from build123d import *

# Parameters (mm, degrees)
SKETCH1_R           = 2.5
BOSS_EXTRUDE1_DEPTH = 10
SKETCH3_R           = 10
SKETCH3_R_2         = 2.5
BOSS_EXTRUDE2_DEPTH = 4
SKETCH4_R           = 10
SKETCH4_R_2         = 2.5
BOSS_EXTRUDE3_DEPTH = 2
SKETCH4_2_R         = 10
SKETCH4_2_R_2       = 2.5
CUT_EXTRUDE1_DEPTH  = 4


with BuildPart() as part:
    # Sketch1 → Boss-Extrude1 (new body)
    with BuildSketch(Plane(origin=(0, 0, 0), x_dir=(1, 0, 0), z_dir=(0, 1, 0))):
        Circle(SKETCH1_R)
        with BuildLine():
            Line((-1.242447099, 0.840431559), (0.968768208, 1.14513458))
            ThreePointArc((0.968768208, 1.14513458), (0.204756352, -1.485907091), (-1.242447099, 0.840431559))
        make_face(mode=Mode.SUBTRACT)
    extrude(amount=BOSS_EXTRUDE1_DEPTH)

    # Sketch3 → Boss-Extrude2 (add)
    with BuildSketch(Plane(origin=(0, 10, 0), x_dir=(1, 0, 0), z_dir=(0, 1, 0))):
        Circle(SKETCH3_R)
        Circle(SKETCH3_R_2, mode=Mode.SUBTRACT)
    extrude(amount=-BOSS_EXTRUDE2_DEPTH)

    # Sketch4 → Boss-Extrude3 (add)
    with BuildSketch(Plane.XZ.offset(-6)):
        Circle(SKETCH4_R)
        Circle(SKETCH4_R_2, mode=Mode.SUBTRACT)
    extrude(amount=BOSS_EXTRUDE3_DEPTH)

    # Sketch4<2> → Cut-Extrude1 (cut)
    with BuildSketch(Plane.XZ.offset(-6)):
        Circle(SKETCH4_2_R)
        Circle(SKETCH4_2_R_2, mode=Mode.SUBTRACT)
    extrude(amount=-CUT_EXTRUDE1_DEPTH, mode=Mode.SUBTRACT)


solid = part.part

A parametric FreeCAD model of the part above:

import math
import FreeCAD as App
import Part
import Sketcher

doc = App.newDocument("Part")
body = doc.addObject("PartDesign::Body", "Body")

sketch1 = body.newObject("Sketcher::SketchObject", "Sketch")
sketch1.AttachmentSupport = (doc.getObject("XZ_Plane"), [""])
sketch1.MapMode = "FlatFace"
sketch1.addGeometry(Part.Circle(App.Vector(0, 0, 0), App.Vector(0, 0, 1), 2.5), False)
sketch1.addGeometry(Part.ArcOfCircle(Part.Circle(App.Vector(0, 0, 0), App.Vector(0, 0, 1), 1.5), math.radians(-50), math.radians(214)), False)
sketch1.addGeometry(Part.LineSegment(App.Vector(-1.2, -0.8, 0), App.Vector(1, -1.1, 0)), False)
sketch1.addConstraint(Sketcher.Constraint("Coincident", 1, 1, 2, 2))
sketch1.addConstraint(Sketcher.Constraint("Coincident", 2, 1, 1, 2))
sketch1.addConstraint(Sketcher.Constraint("Coincident", 0, 3, -1, 1))
sketch1.addConstraint(Sketcher.Constraint("Diameter", 0, 5.0))
sketch1.addConstraint(Sketcher.Constraint("Radius", 1, 1.499964))
sketch1.addConstraint(Sketcher.Constraint("Distance", 2, 2.23211))
sketch1.addConstraint(Sketcher.Constraint("DistanceX", -1, 1, 1, 1, 0.968768))
sketch1.addConstraint(Sketcher.Constraint("DistanceY", 2, 1, -1, 1, 0.840432))
sketch1.addConstraint(Sketcher.Constraint("DistanceX", 2, 1, 1, 3, 1.242411))
pad1 = body.newObject("PartDesign::Pad", "Pad")
pad1.Profile = sketch1
pad1.Length = 10
pad1.Reversed = True

sketch2 = body.newObject("Sketcher::SketchObject", "Sketch001")
sketch2.AttachmentSupport = (doc.getObject("XZ_Plane"), [""])
sketch2.MapMode = "FlatFace"
sketch2.AttachmentOffset = App.Placement(App.Vector(0, 0, -10), App.Rotation())
sketch2.addGeometry(Part.Circle(App.Vector(0, 0, 0), App.Vector(0, 0, 1), 10), False)
sketch2.addGeometry(Part.Circle(App.Vector(0, 0, 0), App.Vector(0, 0, 1), 2.5), False)
sketch2.addConstraint(Sketcher.Constraint("Coincident", 0, 3, -1, 1))
sketch2.addConstraint(Sketcher.Constraint("Coincident", 1, 3, -1, 1))
sketch2.addConstraint(Sketcher.Constraint("Diameter", 0, 20.0))
sketch2.addConstraint(Sketcher.Constraint("Diameter", 1, 5.0))
pad2 = body.newObject("PartDesign::Pad", "Pad001")
pad2.Profile = sketch2
pad2.Length = 4

sketch3 = body.newObject("Sketcher::SketchObject", "Sketch002")
sketch3.AttachmentSupport = (doc.getObject("XZ_Plane"), [""])
sketch3.MapMode = "FlatFace"
sketch3.AttachmentOffset = App.Placement(App.Vector(0, 0, -6), App.Rotation())
sketch3.addGeometry(Part.Circle(App.Vector(0, 0, 0), App.Vector(0, 0, 1), 10), False)
sketch3.addGeometry(Part.Circle(App.Vector(0, 0, 0), App.Vector(0, 0, 1), 2.5), False)
sketch3.addConstraint(Sketcher.Constraint("Coincident", 0, 3, -1, 1))
sketch3.addConstraint(Sketcher.Constraint("Coincident", 1, 3, -1, 1))
sketch3.addConstraint(Sketcher.Constraint("Diameter", 0, 20.0))
sketch3.addConstraint(Sketcher.Constraint("Diameter", 1, 5.0))
pad3 = body.newObject("PartDesign::Pad", "Pad002")
pad3.Profile = sketch3
pad3.Length = 2

sketch4 = body.newObject("Sketcher::SketchObject", "Sketch003")
sketch4.AttachmentSupport = (doc.getObject("XZ_Plane"), [""])
sketch4.MapMode = "FlatFace"
sketch4.AttachmentOffset = App.Placement(App.Vector(0, 0, -6), App.Rotation())
sketch4.addGeometry(Part.Circle(App.Vector(0, 0, 0), App.Vector(0, 0, 1), 10), False)
sketch4.addGeometry(Part.Circle(App.Vector(0, 0, 0), App.Vector(0, 0, 1), 2.5), False)
sketch4.addConstraint(Sketcher.Constraint("Coincident", 0, 3, -1, 1))
sketch4.addConstraint(Sketcher.Constraint("Coincident", 1, 3, -1, 1))
sketch4.addConstraint(Sketcher.Constraint("Diameter", 0, 20.0))
sketch4.addConstraint(Sketcher.Constraint("Diameter", 1, 5.0))
pocket1 = body.newObject("PartDesign::Pocket", "Pocket")
pocket1.Profile = sketch4
pocket1.Length = 4

doc.recompute()
